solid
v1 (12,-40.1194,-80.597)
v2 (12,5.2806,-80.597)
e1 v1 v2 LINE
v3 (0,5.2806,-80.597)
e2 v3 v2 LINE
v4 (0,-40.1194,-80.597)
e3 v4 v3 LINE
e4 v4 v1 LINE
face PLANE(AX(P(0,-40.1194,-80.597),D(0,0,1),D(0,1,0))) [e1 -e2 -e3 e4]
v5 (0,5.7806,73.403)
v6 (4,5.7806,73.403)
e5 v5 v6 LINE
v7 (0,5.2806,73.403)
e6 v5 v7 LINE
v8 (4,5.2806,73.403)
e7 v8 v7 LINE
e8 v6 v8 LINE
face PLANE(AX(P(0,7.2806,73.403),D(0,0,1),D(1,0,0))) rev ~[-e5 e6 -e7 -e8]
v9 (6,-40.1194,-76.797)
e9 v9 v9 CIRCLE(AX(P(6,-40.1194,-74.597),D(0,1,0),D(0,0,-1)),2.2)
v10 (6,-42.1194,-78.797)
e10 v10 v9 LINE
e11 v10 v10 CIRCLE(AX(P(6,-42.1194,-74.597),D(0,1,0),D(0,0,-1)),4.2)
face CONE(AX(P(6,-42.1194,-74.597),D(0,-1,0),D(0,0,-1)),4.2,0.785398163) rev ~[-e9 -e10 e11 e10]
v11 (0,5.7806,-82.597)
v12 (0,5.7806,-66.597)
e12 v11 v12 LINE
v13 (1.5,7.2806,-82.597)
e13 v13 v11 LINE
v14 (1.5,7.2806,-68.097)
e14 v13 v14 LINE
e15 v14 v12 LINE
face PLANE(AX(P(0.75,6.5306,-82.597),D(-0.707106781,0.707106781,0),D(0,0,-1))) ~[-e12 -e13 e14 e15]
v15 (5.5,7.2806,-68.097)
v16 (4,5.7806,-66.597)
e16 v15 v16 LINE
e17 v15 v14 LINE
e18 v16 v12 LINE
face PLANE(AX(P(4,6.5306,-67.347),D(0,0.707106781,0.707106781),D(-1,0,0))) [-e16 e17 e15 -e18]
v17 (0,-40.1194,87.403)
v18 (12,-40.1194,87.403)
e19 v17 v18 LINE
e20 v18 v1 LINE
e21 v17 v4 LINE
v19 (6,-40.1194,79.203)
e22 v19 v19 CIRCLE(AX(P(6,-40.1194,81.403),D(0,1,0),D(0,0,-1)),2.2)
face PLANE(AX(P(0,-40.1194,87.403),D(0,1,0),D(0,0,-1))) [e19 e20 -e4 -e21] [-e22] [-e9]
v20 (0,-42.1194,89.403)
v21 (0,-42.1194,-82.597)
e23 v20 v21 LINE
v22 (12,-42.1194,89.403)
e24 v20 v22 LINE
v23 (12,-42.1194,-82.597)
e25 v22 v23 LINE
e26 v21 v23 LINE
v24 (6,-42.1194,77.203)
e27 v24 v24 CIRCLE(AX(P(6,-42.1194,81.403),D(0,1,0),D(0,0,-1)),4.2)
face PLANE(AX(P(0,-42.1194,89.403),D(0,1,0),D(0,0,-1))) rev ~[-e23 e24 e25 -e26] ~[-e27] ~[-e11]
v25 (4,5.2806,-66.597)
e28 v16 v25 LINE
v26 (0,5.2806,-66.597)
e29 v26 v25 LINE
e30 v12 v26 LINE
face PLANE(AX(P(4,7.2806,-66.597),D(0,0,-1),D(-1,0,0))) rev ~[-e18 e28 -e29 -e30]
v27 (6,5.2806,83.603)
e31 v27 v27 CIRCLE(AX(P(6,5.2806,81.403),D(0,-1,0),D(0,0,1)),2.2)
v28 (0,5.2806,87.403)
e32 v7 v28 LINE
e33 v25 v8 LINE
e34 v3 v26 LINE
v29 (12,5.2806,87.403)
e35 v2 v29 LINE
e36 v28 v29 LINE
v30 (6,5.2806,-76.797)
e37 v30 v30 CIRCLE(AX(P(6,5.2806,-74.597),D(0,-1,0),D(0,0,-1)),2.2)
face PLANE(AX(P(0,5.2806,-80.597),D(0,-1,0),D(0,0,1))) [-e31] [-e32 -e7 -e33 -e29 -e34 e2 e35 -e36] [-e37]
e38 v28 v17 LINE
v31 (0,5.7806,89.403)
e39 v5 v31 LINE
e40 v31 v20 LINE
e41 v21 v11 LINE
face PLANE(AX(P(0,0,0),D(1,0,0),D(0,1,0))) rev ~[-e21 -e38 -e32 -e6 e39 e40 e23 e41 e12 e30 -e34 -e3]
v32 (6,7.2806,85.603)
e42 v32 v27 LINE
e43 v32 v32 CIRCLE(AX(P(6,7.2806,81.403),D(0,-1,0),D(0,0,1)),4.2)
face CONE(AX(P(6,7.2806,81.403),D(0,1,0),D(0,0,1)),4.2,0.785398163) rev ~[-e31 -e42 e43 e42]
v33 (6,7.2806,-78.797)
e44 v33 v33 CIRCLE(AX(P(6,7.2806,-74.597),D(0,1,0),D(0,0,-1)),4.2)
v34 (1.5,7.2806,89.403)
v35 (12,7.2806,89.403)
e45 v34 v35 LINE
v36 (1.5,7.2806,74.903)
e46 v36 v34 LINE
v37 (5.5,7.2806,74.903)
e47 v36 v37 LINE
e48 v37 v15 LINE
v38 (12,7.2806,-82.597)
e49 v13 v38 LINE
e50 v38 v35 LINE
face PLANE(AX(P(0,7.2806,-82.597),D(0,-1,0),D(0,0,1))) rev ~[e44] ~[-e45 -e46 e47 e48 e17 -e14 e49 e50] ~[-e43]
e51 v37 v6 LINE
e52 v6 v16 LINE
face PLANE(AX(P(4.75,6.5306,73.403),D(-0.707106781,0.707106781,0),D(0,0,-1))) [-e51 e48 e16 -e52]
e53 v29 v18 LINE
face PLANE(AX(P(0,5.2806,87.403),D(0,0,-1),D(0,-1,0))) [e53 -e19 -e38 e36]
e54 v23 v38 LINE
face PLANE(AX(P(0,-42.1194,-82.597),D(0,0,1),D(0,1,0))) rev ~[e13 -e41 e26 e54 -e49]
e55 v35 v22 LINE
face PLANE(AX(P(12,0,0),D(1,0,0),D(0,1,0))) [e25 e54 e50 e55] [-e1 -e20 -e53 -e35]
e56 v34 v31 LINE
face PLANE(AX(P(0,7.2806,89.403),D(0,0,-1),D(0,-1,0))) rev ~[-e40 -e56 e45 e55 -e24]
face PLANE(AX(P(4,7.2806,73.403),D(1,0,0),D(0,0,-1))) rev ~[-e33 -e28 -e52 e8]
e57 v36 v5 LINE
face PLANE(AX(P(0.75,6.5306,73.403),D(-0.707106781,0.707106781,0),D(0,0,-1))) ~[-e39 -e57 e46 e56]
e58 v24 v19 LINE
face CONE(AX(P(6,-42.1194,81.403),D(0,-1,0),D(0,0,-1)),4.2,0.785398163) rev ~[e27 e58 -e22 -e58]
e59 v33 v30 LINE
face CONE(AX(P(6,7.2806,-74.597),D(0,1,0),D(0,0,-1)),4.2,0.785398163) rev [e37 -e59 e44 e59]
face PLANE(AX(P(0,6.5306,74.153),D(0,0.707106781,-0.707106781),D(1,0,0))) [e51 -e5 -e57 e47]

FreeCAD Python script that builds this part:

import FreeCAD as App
import Part
import Sketcher

V = App.Vector
Q = App.Units.Quantity


def edges_at(feature, points):
    """Names of the edges that pass closest to the given points."""
    edges = feature.Shape.Edges
    near = lambda p: min(range(len(edges)), key=lambda i: edges[i].distToShape(Part.Vertex(*p))[0])
    return sorted({f"Edge{near(p) + 1}" for p in points})

doc = App.newDocument("Part")
body = doc.addObject("PartDesign::Body", "Body")

# Sketch on YZ plane
sketch1 = doc.addObject("Sketcher::SketchObject", "Sketch")
body.addObject(sketch1)
sketch1.AttachmentSupport = (doc.YZ_Plane, [""])
sketch1.MapMode = "FlatFace"
sketch1.addGeometry([
    Part.LineSegment(V(7, -83, 0), V(7, 89, 0)),  # 0
    Part.LineSegment(V(7, 89, 0), V(-42, 89, 0)),  # 1
    Part.LineSegment(V(-42, 89, 0), V(-42, -83, 0)),  # 2
    Part.LineSegment(V(-42, -83, 0), V(7, -83, 0)),  # 3
    Part.LineSegment(V(-40, 87, 0), V(5, 87, 0)),  # 4
    Part.LineSegment(V(5, 87, 0), V(5, -81, 0)),  # 5
    Part.LineSegment(V(5, -81, 0), V(-40, -81, 0)),  # 6
    Part.LineSegment(V(-40, -81, 0), V(-40, 87, 0)),  # 7
], False)
sketch1.addConstraint([
    Sketcher.Constraint("Coincident", 0, 2, 1, 1),
    Sketcher.Constraint("Coincident", 1, 2, 2, 1),
    Sketcher.Constraint("Coincident", 2, 2, 3, 1),
    Sketcher.Constraint("Coincident", 3, 2, 0, 1),
    Sketcher.Constraint("Coincident", 4, 2, 5, 1),
    Sketcher.Constraint("Coincident", 5, 2, 6, 1),
    Sketcher.Constraint("Coincident", 6, 2, 7, 1),
    Sketcher.Constraint("Coincident", 7, 2, 4, 1),
    Sketcher.Constraint("Vertical", 0),
    Sketcher.Constraint("Horizontal", 1),
    Sketcher.Constraint("Vertical", 2),
    Sketcher.Constraint("Horizontal", 3),
    Sketcher.Constraint("Horizontal", 4),
    Sketcher.Constraint("Vertical", 5),
    Sketcher.Constraint("Horizontal", 6),
    Sketcher.Constraint("Vertical", 7),
    Sketcher.Constraint("DistanceY", 5, 2, 5, 1, Q("168 mm")),
    Sketcher.Constraint("DistanceX", 4, 1, 4, 2, Q("45.4 mm")),
    Sketcher.Constraint("DistanceX", 4, 2, 0, 2, Q("2 mm")),
    Sketcher.Constraint("DistanceY", 4, 2, 0, 2, Q("2 mm")),
    Sketcher.Constraint("DistanceY", 3, 2, 5, 2, Q("2 mm")),
    Sketcher.Constraint("DistanceX", 2, 2, 6, 2, Q("2 mm")),
    Sketcher.Constraint("DistanceY", -1, 1, 0, 2, Q("89.403 mm")),
    Sketcher.Constraint("DistanceX", -1, 1, 0, 2, Q("7.2806 mm")),
])
pad1 = doc.addObject("PartDesign::Pad", "Pad")
body.addObject(pad1)
pad1.Profile = sketch1
pad1.Length = 12

# Sketch on XZ plane
sketch2 = doc.addObject("Sketcher::SketchObject", "Sketch001")
body.addObject(sketch2)
sketch2.AttachmentSupport = (doc.XZ_Plane, [""])
sketch2.MapMode = "FlatFace"
sketch2.AttachmentOffset = App.Placement(V(0, 0, -7.2806), App.Rotation())
sketch2.addGeometry(Part.Circle(V(6, 81.4, 0), V(0, 0, 1), 2), False)
sketch2.addConstraint([
    Sketcher.Constraint("Diameter", 0, Q("4 mm")),
    Sketcher.Constraint("DistanceX", -1, 1, 0, 3, Q("6 mm")),
    Sketcher.Constraint("DistanceY", -1, 1, 0, 3, Q("81.403 mm")),
])
doc.recompute()
hole = doc.addObject("PartDesign::Hole", "Hole")
body.addObject(hole)
hole.Profile = sketch2
hole.ThreadType = "None"
hole.Diameter = 4
hole.DepthType = "Dimension"
hole.Depth = 10
hole.DrillPoint = "Angled"
hole.DrillPointAngle = 118
hole.HoleCutType = "Countersink"
hole.HoleCutDiameter = 8.4
hole.HoleCutCountersinkAngle = 90
hole.Reversed = True
doc.recompute()

datumplane = doc.addObject("PartDesign::Plane", "DatumPlane")
body.addObject(datumplane)
datumplane.AttachmentSupport = (doc.XY_Plane, [""])
datumplane.MapMode = "FlatFace"
datumplane.AttachmentOffset = App.Placement(V(0, 0, 3.403), App.Rotation())
mirrored = doc.addObject("PartDesign::Mirrored", "Mirrored")
body.addObject(mirrored)
mirrored.Originals = [hole]
mirrored.MirrorPlane = (datumplane, [""])
body.Tip = mirrored

# Sketch on XZ plane
sketch3 = doc.addObject("Sketcher::SketchObject", "Sketch002")
body.addObject(sketch3)
sketch3.AttachmentSupport = (doc.XZ_Plane, [""])
sketch3.MapMode = "FlatFace"
sketch3.AttachmentOffset = App.Placement(V(0, 0, -7.2806), App.Rotation())
sketch3.addGeometry([
    Part.LineSegment(V(0, -66.6, 0), V(0, 73.4, 0)),
    Part.LineSegment(V(0, 73.4, 0), V(4, 73.4, 0)),
    Part.LineSegment(V(4, 73.4, 0), V(4, -66.6, 0)),
    Part.LineSegment(V(4, -66.6, 0), V(0, -66.6, 0)),
], False)
sketch3.addConstraint([
    Sketcher.Constraint("Coincident", 0, 2, 1, 1),
    Sketcher.Constraint("Coincident", 1, 2, 2, 1),
    Sketcher.Constraint("Coincident", 2, 2, 3, 1),
    Sketcher.Constraint("Coincident", 3, 2, 0, 1),
    Sketcher.Constraint("Vertical", 0),
    Sketcher.Constraint("Horizontal", 1),
    Sketcher.Constraint("Vertical", 2),
    Sketcher.Constraint("Horizontal", 3),
    Sketcher.Constraint("PointOnObject", 0, 2, -2),
    Sketcher.Constraint("DistanceX", 1, 1, 1, 2, Q("4 mm")),
    Sketcher.Constraint("DistanceY", 0, 1, 0, 2, Q("140 mm")),
    Sketcher.Constraint("DistanceY", -1, 1, 0, 2, Q("73.403 mm")),
])
pocket1 = doc.addObject("PartDesign::Pocket", "Pocket")
body.addObject(pocket1)
pocket1.Profile = sketch3
pocket1.Length = 10
pocket1.Reversed = True
doc.recompute()

chamfer = doc.addObject("PartDesign::Chamfer", "Chamfer")
body.addObject(chamfer)
chamfer.Base = (pocket1, edges_at(pocket1, [
    (4, 7.281, 3.403),
    (2, 7.281, 73.403),
    (0, 7.281, 81.403),
    (2, 7.281, -66.597),
    (0, 7.281, -74.597),
]))
chamfer.Size = 1.5

# Sketch on XZ plane
sketch4 = doc.addObject("Sketcher::SketchObject", "Sketch003")
body.addObject(sketch4)
sketch4.AttachmentSupport = (doc.XZ_Plane, [""])
sketch4.MapMode = "FlatFace"
sketch4.AttachmentOffset = App.Placement(V(0, 0, 42.1194), App.Rotation())
sketch4.addGeometry([
    Part.Circle(V(6, 81.4, 0), V(0, 0, 1), 2),
    Part.Circle(V(6, -74.6, 0), V(0, 0, 1), 2),
], False)
sketch4.addConstraint([
    Sketcher.Constraint("Equal", 0, 1),
    Sketcher.Constraint("Vertical", 0, 3, 1, 3),
    Sketcher.Constraint("Diameter", 0, Q("4 mm")),
    Sketcher.Constraint("DistanceX", -1, 1, 0, 3, Q("6 mm")),
    Sketcher.Constraint("DistanceY", 1, 3, 0, 3, Q("156 mm")),
    Sketcher.Constraint("DistanceY", -1, 1, 0, 3, Q("81.403 mm")),
])
doc.recompute()
hole2 = doc.addObject("PartDesign::Hole", "Hole001")
body.addObject(hole2)
hole2.Profile = sketch4
hole2.ThreadType = "None"
hole2.Diameter = 4
hole2.DepthType = "Dimension"
hole2.Depth = 10
hole2.DrillPoint = "Angled"
hole2.DrillPointAngle = 118
hole2.HoleCutType = "Countersink"
hole2.HoleCutDiameter = 8.4
hole2.HoleCutCountersinkAngle = 90

doc.recompute()
